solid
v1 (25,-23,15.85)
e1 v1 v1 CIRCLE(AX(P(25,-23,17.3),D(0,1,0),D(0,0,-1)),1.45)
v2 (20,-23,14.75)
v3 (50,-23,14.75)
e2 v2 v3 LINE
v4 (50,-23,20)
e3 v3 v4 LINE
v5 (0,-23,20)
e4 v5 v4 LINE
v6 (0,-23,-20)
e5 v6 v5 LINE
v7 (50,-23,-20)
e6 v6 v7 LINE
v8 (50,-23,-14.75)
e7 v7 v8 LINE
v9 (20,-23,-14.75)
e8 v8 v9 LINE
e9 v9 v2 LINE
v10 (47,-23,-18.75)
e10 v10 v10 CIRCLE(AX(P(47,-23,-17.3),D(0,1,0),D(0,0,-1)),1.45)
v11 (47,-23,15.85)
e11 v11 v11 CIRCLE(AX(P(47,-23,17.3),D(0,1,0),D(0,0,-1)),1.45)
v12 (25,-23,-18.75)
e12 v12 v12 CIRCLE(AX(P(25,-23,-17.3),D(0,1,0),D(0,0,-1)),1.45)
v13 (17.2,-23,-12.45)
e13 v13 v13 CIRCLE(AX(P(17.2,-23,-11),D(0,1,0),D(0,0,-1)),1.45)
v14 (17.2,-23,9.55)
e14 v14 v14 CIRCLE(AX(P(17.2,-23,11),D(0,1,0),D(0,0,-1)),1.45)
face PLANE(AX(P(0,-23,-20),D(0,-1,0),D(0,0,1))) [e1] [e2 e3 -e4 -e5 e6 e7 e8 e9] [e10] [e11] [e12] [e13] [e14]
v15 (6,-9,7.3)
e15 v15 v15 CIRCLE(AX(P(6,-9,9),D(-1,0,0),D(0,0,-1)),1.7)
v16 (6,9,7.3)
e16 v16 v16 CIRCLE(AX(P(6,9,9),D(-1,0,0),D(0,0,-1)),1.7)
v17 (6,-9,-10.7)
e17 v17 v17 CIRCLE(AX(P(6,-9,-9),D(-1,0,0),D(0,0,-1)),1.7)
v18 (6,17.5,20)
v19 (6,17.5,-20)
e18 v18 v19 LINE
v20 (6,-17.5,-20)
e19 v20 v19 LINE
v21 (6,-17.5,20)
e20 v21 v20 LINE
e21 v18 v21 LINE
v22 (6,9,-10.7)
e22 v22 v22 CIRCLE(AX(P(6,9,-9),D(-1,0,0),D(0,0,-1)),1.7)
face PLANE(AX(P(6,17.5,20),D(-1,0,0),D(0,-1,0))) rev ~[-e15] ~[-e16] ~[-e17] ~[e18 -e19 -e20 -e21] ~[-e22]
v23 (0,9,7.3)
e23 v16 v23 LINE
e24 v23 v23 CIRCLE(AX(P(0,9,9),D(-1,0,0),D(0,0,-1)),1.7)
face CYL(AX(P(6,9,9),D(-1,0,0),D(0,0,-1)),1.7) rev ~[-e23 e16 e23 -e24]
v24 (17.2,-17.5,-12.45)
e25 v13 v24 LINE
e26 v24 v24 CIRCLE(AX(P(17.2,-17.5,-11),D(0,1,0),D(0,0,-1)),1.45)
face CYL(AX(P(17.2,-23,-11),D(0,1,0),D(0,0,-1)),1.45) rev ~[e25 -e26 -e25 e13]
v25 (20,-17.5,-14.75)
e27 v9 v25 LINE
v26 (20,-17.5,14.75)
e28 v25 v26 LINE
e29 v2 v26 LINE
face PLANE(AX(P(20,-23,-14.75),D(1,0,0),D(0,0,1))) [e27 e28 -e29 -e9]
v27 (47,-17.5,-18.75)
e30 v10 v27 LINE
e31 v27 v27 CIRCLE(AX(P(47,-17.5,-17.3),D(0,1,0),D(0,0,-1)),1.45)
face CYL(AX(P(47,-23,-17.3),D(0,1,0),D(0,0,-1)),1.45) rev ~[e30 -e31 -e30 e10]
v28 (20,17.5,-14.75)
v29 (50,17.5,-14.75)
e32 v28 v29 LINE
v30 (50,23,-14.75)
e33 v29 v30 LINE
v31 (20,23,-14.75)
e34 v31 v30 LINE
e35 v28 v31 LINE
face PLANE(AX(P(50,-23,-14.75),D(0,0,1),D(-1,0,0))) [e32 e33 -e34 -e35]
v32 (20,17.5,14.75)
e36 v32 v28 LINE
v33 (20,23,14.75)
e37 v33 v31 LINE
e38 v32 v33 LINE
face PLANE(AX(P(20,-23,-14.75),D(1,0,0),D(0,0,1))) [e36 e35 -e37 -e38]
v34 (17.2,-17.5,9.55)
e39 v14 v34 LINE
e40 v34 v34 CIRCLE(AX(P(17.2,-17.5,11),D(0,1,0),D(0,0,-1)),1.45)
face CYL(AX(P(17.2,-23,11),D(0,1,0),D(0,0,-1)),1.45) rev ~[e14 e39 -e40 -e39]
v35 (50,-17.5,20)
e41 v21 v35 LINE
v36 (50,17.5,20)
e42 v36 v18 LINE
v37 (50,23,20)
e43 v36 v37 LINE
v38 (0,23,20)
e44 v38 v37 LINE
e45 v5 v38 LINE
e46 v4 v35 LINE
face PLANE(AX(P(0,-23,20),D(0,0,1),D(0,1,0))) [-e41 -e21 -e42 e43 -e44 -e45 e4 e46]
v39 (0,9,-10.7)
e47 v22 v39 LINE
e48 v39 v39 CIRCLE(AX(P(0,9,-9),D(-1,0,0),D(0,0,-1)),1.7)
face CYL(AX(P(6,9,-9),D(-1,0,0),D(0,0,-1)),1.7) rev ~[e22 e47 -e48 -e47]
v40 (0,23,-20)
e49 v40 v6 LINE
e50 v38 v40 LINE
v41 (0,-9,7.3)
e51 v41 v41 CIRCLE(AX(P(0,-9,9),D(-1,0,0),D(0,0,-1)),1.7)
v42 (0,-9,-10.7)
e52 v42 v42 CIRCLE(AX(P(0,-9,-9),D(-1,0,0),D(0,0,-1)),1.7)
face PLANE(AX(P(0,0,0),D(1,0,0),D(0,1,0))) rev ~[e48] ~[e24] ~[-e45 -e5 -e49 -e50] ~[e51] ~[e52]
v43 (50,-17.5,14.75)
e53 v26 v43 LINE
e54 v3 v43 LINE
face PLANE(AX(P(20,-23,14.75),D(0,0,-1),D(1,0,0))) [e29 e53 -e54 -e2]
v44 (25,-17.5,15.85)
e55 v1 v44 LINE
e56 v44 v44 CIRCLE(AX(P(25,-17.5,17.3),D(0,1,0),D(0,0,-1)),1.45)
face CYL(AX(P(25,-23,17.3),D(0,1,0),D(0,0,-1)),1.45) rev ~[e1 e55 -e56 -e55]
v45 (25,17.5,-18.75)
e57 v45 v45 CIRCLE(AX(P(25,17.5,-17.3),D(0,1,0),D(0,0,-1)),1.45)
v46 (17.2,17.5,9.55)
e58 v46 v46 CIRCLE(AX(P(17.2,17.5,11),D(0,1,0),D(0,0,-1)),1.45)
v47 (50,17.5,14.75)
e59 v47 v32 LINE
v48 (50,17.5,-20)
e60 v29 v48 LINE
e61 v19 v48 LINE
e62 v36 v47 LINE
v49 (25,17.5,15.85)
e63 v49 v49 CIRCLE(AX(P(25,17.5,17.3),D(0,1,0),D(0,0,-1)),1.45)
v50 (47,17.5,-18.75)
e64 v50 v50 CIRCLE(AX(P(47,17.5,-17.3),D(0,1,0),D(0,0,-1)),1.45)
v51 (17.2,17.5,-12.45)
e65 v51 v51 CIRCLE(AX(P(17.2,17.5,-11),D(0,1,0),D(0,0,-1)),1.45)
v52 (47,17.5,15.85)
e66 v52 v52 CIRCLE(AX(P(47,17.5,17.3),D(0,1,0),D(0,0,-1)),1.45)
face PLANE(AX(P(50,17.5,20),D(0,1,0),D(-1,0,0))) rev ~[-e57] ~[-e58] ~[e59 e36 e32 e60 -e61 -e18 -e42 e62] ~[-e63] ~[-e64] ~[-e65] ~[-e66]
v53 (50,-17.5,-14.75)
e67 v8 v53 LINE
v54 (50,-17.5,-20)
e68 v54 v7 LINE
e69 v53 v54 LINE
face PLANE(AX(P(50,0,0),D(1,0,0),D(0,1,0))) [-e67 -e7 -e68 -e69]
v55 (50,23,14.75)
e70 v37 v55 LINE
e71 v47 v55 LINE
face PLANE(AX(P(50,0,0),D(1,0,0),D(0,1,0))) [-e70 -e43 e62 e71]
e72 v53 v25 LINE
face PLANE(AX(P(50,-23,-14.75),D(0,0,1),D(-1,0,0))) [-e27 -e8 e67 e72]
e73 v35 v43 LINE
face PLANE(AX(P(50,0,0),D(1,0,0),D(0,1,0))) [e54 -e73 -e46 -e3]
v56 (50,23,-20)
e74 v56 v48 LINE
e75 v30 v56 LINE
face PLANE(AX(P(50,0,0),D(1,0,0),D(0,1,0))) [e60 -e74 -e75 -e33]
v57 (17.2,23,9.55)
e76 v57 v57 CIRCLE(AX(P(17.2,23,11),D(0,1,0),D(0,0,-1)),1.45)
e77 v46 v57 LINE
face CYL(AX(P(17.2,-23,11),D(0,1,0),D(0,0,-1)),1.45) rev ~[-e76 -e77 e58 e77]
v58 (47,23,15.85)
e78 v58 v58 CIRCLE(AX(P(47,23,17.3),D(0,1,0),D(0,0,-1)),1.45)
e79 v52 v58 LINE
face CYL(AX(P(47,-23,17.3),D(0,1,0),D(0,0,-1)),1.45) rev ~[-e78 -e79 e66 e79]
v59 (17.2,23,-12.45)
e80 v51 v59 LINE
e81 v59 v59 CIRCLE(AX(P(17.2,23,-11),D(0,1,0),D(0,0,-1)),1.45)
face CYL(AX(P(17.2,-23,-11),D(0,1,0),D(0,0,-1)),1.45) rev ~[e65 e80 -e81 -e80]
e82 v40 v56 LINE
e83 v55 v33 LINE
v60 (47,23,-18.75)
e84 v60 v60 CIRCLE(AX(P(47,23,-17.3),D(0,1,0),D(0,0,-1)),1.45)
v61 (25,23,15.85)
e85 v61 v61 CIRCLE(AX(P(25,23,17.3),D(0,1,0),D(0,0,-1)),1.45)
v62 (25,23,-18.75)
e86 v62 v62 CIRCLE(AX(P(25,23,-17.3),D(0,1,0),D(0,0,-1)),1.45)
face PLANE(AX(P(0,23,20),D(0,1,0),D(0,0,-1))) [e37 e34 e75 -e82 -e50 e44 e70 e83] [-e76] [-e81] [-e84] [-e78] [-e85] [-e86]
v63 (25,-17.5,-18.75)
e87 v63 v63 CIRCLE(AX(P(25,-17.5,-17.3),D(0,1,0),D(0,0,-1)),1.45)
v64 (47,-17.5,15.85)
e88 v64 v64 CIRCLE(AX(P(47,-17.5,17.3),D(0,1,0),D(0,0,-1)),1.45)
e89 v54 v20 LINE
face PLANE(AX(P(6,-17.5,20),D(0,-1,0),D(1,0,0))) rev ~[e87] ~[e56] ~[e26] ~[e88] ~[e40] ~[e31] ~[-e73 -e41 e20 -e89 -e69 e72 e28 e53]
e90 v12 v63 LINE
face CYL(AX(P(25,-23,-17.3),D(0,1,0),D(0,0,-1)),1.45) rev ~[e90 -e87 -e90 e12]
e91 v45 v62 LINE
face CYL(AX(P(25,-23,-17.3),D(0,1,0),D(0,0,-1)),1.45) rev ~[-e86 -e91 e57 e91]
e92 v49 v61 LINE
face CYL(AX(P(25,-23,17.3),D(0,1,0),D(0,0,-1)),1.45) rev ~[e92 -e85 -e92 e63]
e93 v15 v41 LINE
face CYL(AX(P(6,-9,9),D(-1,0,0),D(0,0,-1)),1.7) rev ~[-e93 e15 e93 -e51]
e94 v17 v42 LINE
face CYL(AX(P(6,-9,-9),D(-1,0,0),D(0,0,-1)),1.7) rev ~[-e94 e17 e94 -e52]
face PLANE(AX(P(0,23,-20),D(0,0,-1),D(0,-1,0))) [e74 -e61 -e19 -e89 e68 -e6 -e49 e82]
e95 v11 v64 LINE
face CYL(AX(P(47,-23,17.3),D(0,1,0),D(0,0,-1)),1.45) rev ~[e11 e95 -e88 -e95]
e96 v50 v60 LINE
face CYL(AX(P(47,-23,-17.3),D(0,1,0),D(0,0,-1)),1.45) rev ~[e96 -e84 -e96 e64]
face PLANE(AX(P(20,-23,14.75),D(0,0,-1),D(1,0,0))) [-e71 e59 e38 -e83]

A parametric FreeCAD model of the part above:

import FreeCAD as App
import Part
import Sketcher
from FreeCAD import Vector

doc = App.newDocument("Part")
body = doc.addObject("PartDesign::Body", "Body")

# Sketch on YZ plane
sketch1 = doc.addObject("Sketcher::SketchObject", "Sketch")
body.addObject(sketch1)
sketch1.AttachmentSupport = (doc.YZ_Plane, [""])
sketch1.MapMode = "FlatFace"
sketch1.addGeometry(Part.LineSegment(Vector(23, 20, 0), Vector(-23, 20, 0)), False)
sketch1.addGeometry(Part.LineSegment(Vector(-23, 20, 0), Vector(-23, -20, 0)), False)
sketch1.addGeometry(Part.LineSegment(Vector(-23, -20, 0), Vector(23, -20, 0)), False)
sketch1.addGeometry(Part.LineSegment(Vector(23, -20, 0), Vector(23, 20, 0)), False)
sketch1.addConstraint(Sketcher.Constraint("Coincident", 0, 2, 1, 1))
sketch1.addConstraint(Sketcher.Constraint("Coincident", 1, 2, 2, 1))
sketch1.addConstraint(Sketcher.Constraint("Coincident", 2, 2, 3, 1))
sketch1.addConstraint(Sketcher.Constraint("Coincident", 3, 2, 0, 1))
sketch1.addConstraint(Sketcher.Constraint("Horizontal", 0))
sketch1.addConstraint(Sketcher.Constraint("Vertical", 1))
sketch1.addConstraint(Sketcher.Constraint("Horizontal", 2))
sketch1.addConstraint(Sketcher.Constraint("Vertical", 3))
sketch1.addConstraint(Sketcher.Constraint("Symmetric", 0, 2, 2, 2, -1, 1))
sketch1.addConstraint(Sketcher.Constraint("DistanceX", 0, 2, 0, 1, 46.0))
sketch1.addConstraint(Sketcher.Constraint("DistanceY", 1, 2, 1, 1, 40.0))
pad1 = doc.addObject("PartDesign::Pad", "Pad")
body.addObject(pad1)
pad1.Profile = sketch1
pad1.Length = 50

# Sketch on XY plane
sketch2 = doc.addObject("Sketcher::SketchObject", "Sketch001")
body.addObject(sketch2)
sketch2.AttachmentSupport = (doc.XY_Plane, [""])
sketch2.MapMode = "FlatFace"
sketch2.AttachmentOffset = App.Placement(Vector(0, 0, 20), App.Rotation())
sketch2.addGeometry(Part.LineSegment(Vector(6, -18, 0), Vector(50, -18, 0)), False)
sketch2.addGeometry(Part.LineSegment(Vector(50, -18, 0), Vector(50, 18, 0)), False)
sketch2.addGeometry(Part.LineSegment(Vector(50, 18, 0), Vector(6, 18, 0)), False)
sketch2.addGeometry(Part.LineSegment(Vector(6, 18, 0), Vector(6, -18, 0)), False)
sketch2.addConstraint(Sketcher.Constraint("Coincident", 0, 2, 1, 1))
sketch2.addConstraint(Sketcher.Constraint("Coincident", 1, 2, 2, 1))
sketch2.addConstraint(Sketcher.Constraint("Coincident", 2, 2, 3, 1))
sketch2.addConstraint(Sketcher.Constraint("Coincident", 3, 2, 0, 1))
sketch2.addConstraint(Sketcher.Constraint("Horizontal", 0))
sketch2.addConstraint(Sketcher.Constraint("Vertical", 1))
sketch2.addConstraint(Sketcher.Constraint("Horizontal", 2))
sketch2.addConstraint(Sketcher.Constraint("Vertical", 3))
sketch2.addConstraint(Sketcher.Constraint("DistanceX", -1, 1, 2, 2, 6.0))
sketch2.addConstraint(Sketcher.Constraint("DistanceX", 0, 1, 0, 2, 44.0))
sketch2.addConstraint(Sketcher.Constraint("DistanceY", 1, 1, 1, 2, 35.0))
sketch2.addConstraint(Sketcher.Constraint("DistanceY", 0, 2, -1, 1, 17.5))
pocket1 = doc.addObject("PartDesign::Pocket", "Pocket")
body.addObject(pocket1)
pocket1.Profile = sketch2
pocket1.Type = "ThroughAll"

# Sketch on XZ plane
sketch3 = doc.addObject("Sketcher::SketchObject", "Sketch002")
body.addObject(sketch3)
sketch3.AttachmentSupport = (doc.XZ_Plane, [""])
sketch3.MapMode = "FlatFace"
sketch3.AttachmentOffset = App.Placement(Vector(0, 0, 23), App.Rotation())
sketch3.addGeometry(Part.LineSegment(Vector(20, -15, 0), Vector(50, -15, 0)), False)
sketch3.addGeometry(Part.LineSegment(Vector(50, -15, 0), Vector(50, 15, 0)), False)
sketch3.addGeometry(Part.LineSegment(Vector(50, 15, 0), Vector(20, 15, 0)), False)
sketch3.addGeometry(Part.LineSegment(Vector(20, 15, 0), Vector(20, -15, 0)), False)
sketch3.addConstraint(Sketcher.Constraint("Coincident", 0, 2, 1, 1))
sketch3.addConstraint(Sketcher.Constraint("Coincident", 1, 2, 2, 1))
sketch3.addConstraint(Sketcher.Constraint("Coincident", 2, 2, 3, 1))
sketch3.addConstraint(Sketcher.Constraint("Coincident", 3, 2, 0, 1))
sketch3.addConstraint(Sketcher.Constraint("Horizontal", 0))
sketch3.addConstraint(Sketcher.Constraint("Vertical", 1))
sketch3.addConstraint(Sketcher.Constraint("Horizontal", 2))
sketch3.addConstraint(Sketcher.Constraint("Vertical", 3))
sketch3.addConstraint(Sketcher.Constraint("DistanceX", 0, 1, 0, 2, 30.0))
sketch3.addConstraint(Sketcher.Constraint("DistanceY", 1, 1, 1, 2, 29.5))
sketch3.addConstraint(Sketcher.Constraint("DistanceX", -1, 1, 0, 2, 50.0))
sketch3.addConstraint(Sketcher.Constraint("DistanceY", 0, 2, -1, 1, 14.75))
pocket2 = doc.addObject("PartDesign::Pocket", "Pocket001")
body.addObject(pocket2)
pocket2.Profile = sketch3
pocket2.Type = "ThroughAll"

# Sketch on XZ plane
sketch4 = doc.addObject("Sketcher::SketchObject", "Sketch003")
body.addObject(sketch4)
sketch4.AttachmentSupport = (doc.XZ_Plane, [""])
sketch4.MapMode = "FlatFace"
sketch4.AttachmentOffset = App.Placement(Vector(0, 0, 23), App.Rotation())
sketch4.addGeometry(Part.Circle(Vector(25, 17.3, 0), Vector(0, 0, 1), 1.4), False)
sketch4.addGeometry(Part.Circle(Vector(25, -17.3, 0), Vector(0, 0, 1), 1.4), False)
sketch4.addGeometry(Part.Circle(Vector(17.2, 11, 0), Vector(0, 0, 1), 1.4), False)
sketch4.addGeometry(Part.Circle(Vector(17.2, -11, 0), Vector(0, 0, 1), 1.4), False)
sketch4.addGeometry(Part.Circle(Vector(47, 17.3, 0), Vector(0, 0, 1), 1.4), False)
sketch4.addGeometry(Part.Circle(Vector(47, -17.3, 0), Vector(0, 0, 1), 1.4), False)
sketch4.addConstraint(Sketcher.Constraint("Equal", 0, 1))
sketch4.addConstraint(Sketcher.Constraint("Equal", 1, 2))
sketch4.addConstraint(Sketcher.Constraint("Equal", 2, 3))
sketch4.addConstraint(Sketcher.Constraint("Equal", 3, 4))
sketch4.addConstraint(Sketcher.Constraint("Equal", 4, 5))
sketch4.addConstraint(Sketcher.Constraint("Symmetric", 0, 3, 1, 3, -1))
sketch4.addConstraint(Sketcher.Constraint("Symmetric", 2, 3, 3, 3, -1))
sketch4.addConstraint(Sketcher.Constraint("Symmetric", 4, 3, 5, 3, -1))
sketch4.addConstraint(Sketcher.Constraint("Horizontal", 0, 3, 4, 3))
sketch4.addConstraint(Sketcher.Constraint("Diameter", 0, 2.9))
sketch4.addConstraint(Sketcher.Constraint("DistanceX", -1, 1, 0, 3, 25.0))
sketch4.addConstraint(Sketcher.Constraint("DistanceY", -1, 1, 2, 3, 11.0))
sketch4.addConstraint(Sketcher.Constraint("DistanceX", -1, 1, 4, 3, 47.0))
sketch4.addConstraint(Sketcher.Constraint("DistanceY", -1, 1, 0, 3, 17.3))
sketch4.addConstraint(Sketcher.Constraint("DistanceX", -1, 1, 2, 3, 17.2))
doc.recompute()
hole = doc.addObject("PartDesign::Hole", "Hole")
body.addObject(hole)
hole.Profile = sketch4
hole.ThreadType = "None"
hole.Diameter = 2.9
hole.DepthType = "ThroughAll"

# Sketch on YZ plane
sketch5 = doc.addObject("Sketcher::SketchObject", "Sketch004")
body.addObject(sketch5)
sketch5.AttachmentSupport = (doc.YZ_Plane, [""])
sketch5.MapMode = "FlatFace"
sketch5.AttachmentOffset = App.Placement(Vector(0, 0, 6), App.Rotation())
sketch5.addGeometry(Part.Circle(Vector(-9, 9, 0), Vector(0, 0, 1), 1.7), False)
sketch5.addGeometry(Part.Circle(Vector(9, 9, 0), Vector(0, 0, 1), 1.7), False)
sketch5.addGeometry(Part.Circle(Vector(9, -9, 0), Vector(0, 0, 1), 1.7), False)
sketch5.addGeometry(Part.Circle(Vector(-9, -9, 0), Vector(0, 0, 1), 1.7), False)
sketch5.addConstraint(Sketcher.Constraint("Equal", 0, 1))
sketch5.addConstraint(Sketcher.Constraint("Equal", 1, 2))
sketch5.addConstraint(Sketcher.Constraint("Equal", 2, 3))
sketch5.addConstraint(Sketcher.Constraint("Symmetric", 0, 3, 2, 3, -1, 1))
sketch5.addConstraint(Sketcher.Constraint("Symmetric", 1, 3, 3, 3, -1, 1))
sketch5.addConstraint(Sketcher.Constraint("Symmetric", 0, 3, 1, 3, -2))
sketch5.addConstraint(Sketcher.Constraint("Diameter", 0, 3.4))
sketch5.addConstraint(Sketcher.Constraint("DistanceX", 0, 3, -1, 1, 9.0))
sketch5.addConstraint(Sketcher.Constraint("DistanceY", -1, 1, 0, 3, 9.0))
doc.recompute()
hole2 = doc.addObject("PartDesign::Hole", "Hole001")
body.addObject(hole2)
hole2.Profile = sketch5
hole2.ThreadType = "None"
hole2.Diameter = 3.4
hole2.DepthType = "ThroughAll"

doc.recompute()
